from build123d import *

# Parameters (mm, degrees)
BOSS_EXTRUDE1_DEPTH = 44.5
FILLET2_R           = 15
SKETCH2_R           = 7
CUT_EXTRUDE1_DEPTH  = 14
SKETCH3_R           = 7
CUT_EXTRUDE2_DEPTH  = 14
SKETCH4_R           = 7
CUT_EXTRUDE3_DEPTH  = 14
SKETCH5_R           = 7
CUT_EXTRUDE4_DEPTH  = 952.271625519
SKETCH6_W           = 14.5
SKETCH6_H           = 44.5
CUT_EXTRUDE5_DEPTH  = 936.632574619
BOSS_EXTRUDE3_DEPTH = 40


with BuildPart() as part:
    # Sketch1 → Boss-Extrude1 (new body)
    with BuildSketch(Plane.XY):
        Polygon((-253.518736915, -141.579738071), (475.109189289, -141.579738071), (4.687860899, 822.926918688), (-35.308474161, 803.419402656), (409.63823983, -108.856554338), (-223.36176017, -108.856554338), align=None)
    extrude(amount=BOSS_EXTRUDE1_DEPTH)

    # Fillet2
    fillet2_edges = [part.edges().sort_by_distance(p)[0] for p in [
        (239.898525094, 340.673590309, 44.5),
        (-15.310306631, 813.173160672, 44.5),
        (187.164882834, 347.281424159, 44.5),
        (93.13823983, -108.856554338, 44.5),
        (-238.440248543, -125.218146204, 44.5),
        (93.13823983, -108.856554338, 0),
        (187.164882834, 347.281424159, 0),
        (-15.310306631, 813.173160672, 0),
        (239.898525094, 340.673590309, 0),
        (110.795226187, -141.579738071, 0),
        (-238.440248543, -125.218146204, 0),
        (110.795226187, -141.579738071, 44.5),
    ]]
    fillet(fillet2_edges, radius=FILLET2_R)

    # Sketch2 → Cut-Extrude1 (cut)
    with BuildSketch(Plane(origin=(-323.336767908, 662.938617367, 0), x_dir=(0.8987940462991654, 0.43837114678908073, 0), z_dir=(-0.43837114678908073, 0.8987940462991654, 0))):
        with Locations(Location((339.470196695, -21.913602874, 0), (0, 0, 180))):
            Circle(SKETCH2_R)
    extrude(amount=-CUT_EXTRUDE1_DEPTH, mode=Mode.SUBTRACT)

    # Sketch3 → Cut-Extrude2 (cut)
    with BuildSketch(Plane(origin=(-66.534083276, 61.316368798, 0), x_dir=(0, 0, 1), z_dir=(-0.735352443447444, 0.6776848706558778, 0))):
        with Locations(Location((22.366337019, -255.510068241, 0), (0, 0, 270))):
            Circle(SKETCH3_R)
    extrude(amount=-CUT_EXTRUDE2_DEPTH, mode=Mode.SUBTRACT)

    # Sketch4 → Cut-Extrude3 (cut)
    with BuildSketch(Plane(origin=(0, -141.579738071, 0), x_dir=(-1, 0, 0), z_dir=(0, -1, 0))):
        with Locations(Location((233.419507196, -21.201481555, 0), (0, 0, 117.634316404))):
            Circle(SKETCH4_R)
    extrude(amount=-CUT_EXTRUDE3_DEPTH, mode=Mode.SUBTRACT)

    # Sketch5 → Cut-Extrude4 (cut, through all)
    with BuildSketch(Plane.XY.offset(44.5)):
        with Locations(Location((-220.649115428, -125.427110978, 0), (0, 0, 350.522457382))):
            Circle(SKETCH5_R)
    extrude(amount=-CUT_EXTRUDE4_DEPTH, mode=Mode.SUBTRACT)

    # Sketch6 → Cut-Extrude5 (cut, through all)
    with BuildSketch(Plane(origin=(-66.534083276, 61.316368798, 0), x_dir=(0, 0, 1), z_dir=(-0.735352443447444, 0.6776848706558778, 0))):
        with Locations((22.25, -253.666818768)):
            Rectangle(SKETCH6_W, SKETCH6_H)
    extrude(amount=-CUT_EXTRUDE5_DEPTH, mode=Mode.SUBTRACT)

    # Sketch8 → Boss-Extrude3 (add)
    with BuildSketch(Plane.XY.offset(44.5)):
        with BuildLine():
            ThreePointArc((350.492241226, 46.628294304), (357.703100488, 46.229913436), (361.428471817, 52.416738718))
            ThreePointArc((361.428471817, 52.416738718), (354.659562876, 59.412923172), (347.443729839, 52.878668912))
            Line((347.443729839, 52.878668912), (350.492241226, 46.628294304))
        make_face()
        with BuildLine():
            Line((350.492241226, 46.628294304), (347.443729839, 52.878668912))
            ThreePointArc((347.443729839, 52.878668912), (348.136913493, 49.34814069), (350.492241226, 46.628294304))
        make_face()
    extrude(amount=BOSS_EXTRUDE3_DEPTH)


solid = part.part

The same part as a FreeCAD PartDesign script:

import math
import FreeCAD as App
import Part
import Sketcher

V = App.Vector
Q = App.Units.Quantity


def edges_at(feature, points):
    """Names of the edges that pass closest to the given points."""
    edges = feature.Shape.Edges
    near = lambda p: min(range(len(edges)), key=lambda i: edges[i].distToShape(Part.Vertex(*p))[0])
    return sorted({f"Edge{near(p) + 1}" for p in points})


def add_polygon(sketch, points):
    """Adds a closed chain of lines whose ends are joined by coincident constraints."""
    first, n = sketch.GeometryCount, len(points)
    for a, b in zip(points, points[1:] + points[:1]):
        sketch.addGeometry(Part.LineSegment(App.Vector(*a, 0), App.Vector(*b, 0)), False)
    for i in range(n):
        sketch.addConstraint(Sketcher.Constraint("Coincident", first + i, 2, first + (i + 1) % n, 1))

doc = App.newDocument("Part")
body = doc.addObject("PartDesign::Body", "Body")

# Sketch on XY plane
sketch1 = doc.addObject("Sketcher::SketchObject", "Sketch")
body.addObject(sketch1)
sketch1.AttachmentSupport = (doc.XY_Plane, [""])
sketch1.MapMode = "FlatFace"
add_polygon(sketch1, [(-253.518737, -141.579738), (475.109189, -141.579738), (4.687861, 822.926919), (-35.308474, 803.419403), (409.63824, -108.856554), (-223.36176, -108.856554)])  # lines 0-5
sketch1.addConstraint([
    Sketcher.Constraint("Horizontal", 0),
    Sketcher.Constraint("Horizontal", 4),
    Sketcher.Constraint("Perpendicular", 1, 2),
    Sketcher.Constraint("Perpendicular", 2, 3),
    Sketcher.Constraint("Equal", 2, 5),
    Sketcher.Constraint("DistanceX", 4, 2, 4, 1, 633.0),
    Sketcher.Constraint("Angle", 1, Q("116 deg")),
    Sketcher.Constraint("Distance", 3, 1015.0),
    Sketcher.Constraint("Distance", 2, 44.5),
    Sketcher.Constraint("DistanceX", 0, 1, 0, 2, 728.627926),
    Sketcher.Constraint("DistanceX", -1, 1, 0, 2, 475.109189),
    Sketcher.Constraint("DistanceY", 0, 2, -1, 1, 141.579738),
])
pad1 = doc.addObject("PartDesign::Pad", "Pad")
body.addObject(pad1)
pad1.Profile = sketch1
pad1.Length = 44.5
doc.recompute()

fillet = doc.addObject("PartDesign::Fillet", "Fillet")
body.addObject(fillet)
fillet.Base = (pad1, edges_at(pad1, [
    (239.899, 340.674, 44.5),
    (-15.31, 813.173, 44.5),
    (187.165, 347.281, 44.5),
    (93.138, -108.857, 44.5),
    (-238.44, -125.218, 44.5),
    (93.138, -108.857, 0),
    (187.165, 347.281, 0),
    (-15.31, 813.173, 0),
    (239.899, 340.674, 0),
    (110.795, -141.58, 0),
    (-238.44, -125.218, 0),
    (110.795, -141.58, 44.5),
]))
fillet.Radius = 15

# Sketch on an angled plane
sketch2 = doc.addObject("Sketcher::SketchObject", "Sketch001")
body.addObject(sketch2)
sketch2.Placement = App.Placement(V(-323.336768, 662.938617, 0), App.Rotation(V(0.898794046, 0.438371147, 0), V(0, 0, -1), V(-0.438371147, 0.898794046, 0), "ZXY"))
sketch2.addGeometry(Part.Circle(V(339.470197, -21.913603, 0), V(0, 0, 1), 7), False)
sketch2.addConstraint([
    Sketcher.Constraint("Diameter", 0, 14.0),
    Sketcher.Constraint("DistanceX", -1, 1, 0, 3, 339.470197),
    Sketcher.Constraint("DistanceY", 0, 3, -1, 1, 21.913603),
])
pocket1 = doc.addObject("PartDesign::Pocket", "Pocket")
body.addObject(pocket1)
pocket1.Profile = sketch2
pocket1.Length = 14

# Sketch on an angled plane
sketch3 = doc.addObject("Sketcher::SketchObject", "Sketch002")
body.addObject(sketch3)
sketch3.Placement = App.Placement(V(-66.534083, 61.316369, 0), App.Rotation(V(0, 0, 1), V(0.677684871, 0.735352443, 0), V(-0.735352443, 0.677684871, 0), "ZXY"))
sketch3.addGeometry(Part.Circle(V(22.366337, -255.510068, 0), V(0, 0, 1), 7), False)
sketch3.addConstraint([
    Sketcher.Constraint("Diameter", 0, 14.0),
    Sketcher.Constraint("DistanceY", 0, 3, -1, 1, 255.510068),
    Sketcher.Constraint("DistanceX", -1, 1, 0, 3, 22.366337),
])
pocket2 = doc.addObject("PartDesign::Pocket", "Pocket001")
body.addObject(pocket2)
pocket2.Profile = sketch3
pocket2.Length = 14

# Sketch on XZ plane
sketch4 = doc.addObject("Sketcher::SketchObject", "Sketch003")
body.addObject(sketch4)
sketch4.AttachmentSupport = (doc.XZ_Plane, [""])
sketch4.MapMode = "FlatFace"
sketch4.AttachmentOffset = App.Placement(V(0, 0, 141.579738), App.Rotation())
sketch4.addGeometry(Part.Circle(V(-233.419507, 21.201482, 0), V(0, 0, 1), 7), False)
sketch4.addConstraint([
    Sketcher.Constraint("Diameter", 0, 14.0),
    Sketcher.Constraint("DistanceY", -1, 1, 0, 3, 21.201482),
    Sketcher.Constraint("DistanceX", 0, 3, -1, 1, 233.419507),
])
pocket3 = doc.addObject("PartDesign::Pocket", "Pocket002")
body.addObject(pocket3)
pocket3.Profile = sketch4
pocket3.Length = 14

# Sketch on XY plane
sketch5 = doc.addObject("Sketcher::SketchObject", "Sketch004")
body.addObject(sketch5)
sketch5.AttachmentSupport = (doc.XY_Plane, [""])
sketch5.MapMode = "FlatFace"
sketch5.AttachmentOffset = App.Placement(V(0, 0, 44.5), App.Rotation())
sketch5.addGeometry(Part.Circle(V(-220.649115, -125.427111, 0), V(0, 0, 1), 7), False)
sketch5.addConstraint([
    Sketcher.Constraint("Diameter", 0, 14.0),
    Sketcher.Constraint("DistanceY", 0, 3, -1, 1, 125.427111),
    Sketcher.Constraint("DistanceX", 0, 3, -1, 1, 220.649115),
])
pocket4 = doc.addObject("PartDesign::Pocket", "Pocket003")
body.addObject(pocket4)
pocket4.Profile = sketch5
pocket4.Type = "ThroughAll"

# Sketch on an angled plane
sketch6 = doc.addObject("Sketcher::SketchObject", "Sketch005")
body.addObject(sketch6)
sketch6.Placement = App.Placement(V(-66.534083, 61.316369, 0), App.Rotation(V(0, 0, 1), V(0.677684871, 0.735352443, 0), V(-0.735352443, 0.677684871, 0), "ZXY"))
add_polygon(sketch6, [(15, -231.416819), (15, -275.916819), (29.5, -275.916819), (29.5, -231.416819)])  # lines 0-3
sketch6.addConstraint([
    Sketcher.Constraint("Vertical", 0),
    Sketcher.Constraint("Horizontal", 1),
    Sketcher.Constraint("Vertical", 2),
    Sketcher.Constraint("Horizontal", 3),
    Sketcher.Constraint("DistanceX", 1, 1, 1, 2, 14.5),
    Sketcher.Constraint("DistanceY", 0, 2, 0, 1, 44.5),
    Sketcher.Constraint("DistanceX", -1, 1, 0, 2, 15.0),
    Sketcher.Constraint("DistanceY", 0, 2, -1, 1, 275.916819),
])
pocket5 = doc.addObject("PartDesign::Pocket", "Pocket004")
body.addObject(pocket5)
pocket5.Profile = sketch6
pocket5.Type = "ThroughAll"

# Sketch on XY plane
sketch7 = doc.addObject("Sketcher::SketchObject", "Sketch006")
body.addObject(sketch7)
sketch7.AttachmentSupport = (doc.XY_Plane, [""])
sketch7.MapMode = "FlatFace"
sketch7.AttachmentOffset = App.Placement(V(0, 0, 44.5), App.Rotation())
sketch7.addGeometry([
    Part.ArcOfCircle(Part.Circle(V(354.428472, 52.416739, 0), V(0, 0, 1), 7), math.radians(-124.2163), math.radians(0)),
    Part.ArcOfCircle(Part.Circle(V(354.428472, 52.416739, 0), V(0, 0, 1), 7), math.radians(0), math.radians(176.2163)),
    Part.ArcOfCircle(Part.Circle(V(354.428472, 52.416739, 0), V(0, 0, 1), 7), math.radians(176.2163), math.radians(235.7837)),
], False)
sketch7.addConstraint([
    Sketcher.Constraint("Tangent", 0, 2, 1, 1),
    Sketcher.Constraint("Tangent", 1, 2, 2, 1),
    Sketcher.Constraint("Tangent", 2, 2, 0, 1),
    Sketcher.Constraint("Horizontal", 2, 3, 0, 2),
    Sketcher.Constraint("Radius", 0, 7.0),
    Sketcher.Constraint("DistanceX", -1, 1, 0, 3, 354.428472),
    Sketcher.Constraint("DistanceY", -1, 1, 0, 3, 52.416739),
    Sketcher.Constraint("DistanceX", -1, 1, 1, 2, 347.44373),
    Sketcher.Constraint("DistanceX", -1, 1, 2, 2, 350.492241),
])
pad2 = doc.addObject("PartDesign::Pad", "Pad001")
body.addObject(pad2)
pad2.Profile = sketch7
pad2.Length = 40

doc.recompute()
